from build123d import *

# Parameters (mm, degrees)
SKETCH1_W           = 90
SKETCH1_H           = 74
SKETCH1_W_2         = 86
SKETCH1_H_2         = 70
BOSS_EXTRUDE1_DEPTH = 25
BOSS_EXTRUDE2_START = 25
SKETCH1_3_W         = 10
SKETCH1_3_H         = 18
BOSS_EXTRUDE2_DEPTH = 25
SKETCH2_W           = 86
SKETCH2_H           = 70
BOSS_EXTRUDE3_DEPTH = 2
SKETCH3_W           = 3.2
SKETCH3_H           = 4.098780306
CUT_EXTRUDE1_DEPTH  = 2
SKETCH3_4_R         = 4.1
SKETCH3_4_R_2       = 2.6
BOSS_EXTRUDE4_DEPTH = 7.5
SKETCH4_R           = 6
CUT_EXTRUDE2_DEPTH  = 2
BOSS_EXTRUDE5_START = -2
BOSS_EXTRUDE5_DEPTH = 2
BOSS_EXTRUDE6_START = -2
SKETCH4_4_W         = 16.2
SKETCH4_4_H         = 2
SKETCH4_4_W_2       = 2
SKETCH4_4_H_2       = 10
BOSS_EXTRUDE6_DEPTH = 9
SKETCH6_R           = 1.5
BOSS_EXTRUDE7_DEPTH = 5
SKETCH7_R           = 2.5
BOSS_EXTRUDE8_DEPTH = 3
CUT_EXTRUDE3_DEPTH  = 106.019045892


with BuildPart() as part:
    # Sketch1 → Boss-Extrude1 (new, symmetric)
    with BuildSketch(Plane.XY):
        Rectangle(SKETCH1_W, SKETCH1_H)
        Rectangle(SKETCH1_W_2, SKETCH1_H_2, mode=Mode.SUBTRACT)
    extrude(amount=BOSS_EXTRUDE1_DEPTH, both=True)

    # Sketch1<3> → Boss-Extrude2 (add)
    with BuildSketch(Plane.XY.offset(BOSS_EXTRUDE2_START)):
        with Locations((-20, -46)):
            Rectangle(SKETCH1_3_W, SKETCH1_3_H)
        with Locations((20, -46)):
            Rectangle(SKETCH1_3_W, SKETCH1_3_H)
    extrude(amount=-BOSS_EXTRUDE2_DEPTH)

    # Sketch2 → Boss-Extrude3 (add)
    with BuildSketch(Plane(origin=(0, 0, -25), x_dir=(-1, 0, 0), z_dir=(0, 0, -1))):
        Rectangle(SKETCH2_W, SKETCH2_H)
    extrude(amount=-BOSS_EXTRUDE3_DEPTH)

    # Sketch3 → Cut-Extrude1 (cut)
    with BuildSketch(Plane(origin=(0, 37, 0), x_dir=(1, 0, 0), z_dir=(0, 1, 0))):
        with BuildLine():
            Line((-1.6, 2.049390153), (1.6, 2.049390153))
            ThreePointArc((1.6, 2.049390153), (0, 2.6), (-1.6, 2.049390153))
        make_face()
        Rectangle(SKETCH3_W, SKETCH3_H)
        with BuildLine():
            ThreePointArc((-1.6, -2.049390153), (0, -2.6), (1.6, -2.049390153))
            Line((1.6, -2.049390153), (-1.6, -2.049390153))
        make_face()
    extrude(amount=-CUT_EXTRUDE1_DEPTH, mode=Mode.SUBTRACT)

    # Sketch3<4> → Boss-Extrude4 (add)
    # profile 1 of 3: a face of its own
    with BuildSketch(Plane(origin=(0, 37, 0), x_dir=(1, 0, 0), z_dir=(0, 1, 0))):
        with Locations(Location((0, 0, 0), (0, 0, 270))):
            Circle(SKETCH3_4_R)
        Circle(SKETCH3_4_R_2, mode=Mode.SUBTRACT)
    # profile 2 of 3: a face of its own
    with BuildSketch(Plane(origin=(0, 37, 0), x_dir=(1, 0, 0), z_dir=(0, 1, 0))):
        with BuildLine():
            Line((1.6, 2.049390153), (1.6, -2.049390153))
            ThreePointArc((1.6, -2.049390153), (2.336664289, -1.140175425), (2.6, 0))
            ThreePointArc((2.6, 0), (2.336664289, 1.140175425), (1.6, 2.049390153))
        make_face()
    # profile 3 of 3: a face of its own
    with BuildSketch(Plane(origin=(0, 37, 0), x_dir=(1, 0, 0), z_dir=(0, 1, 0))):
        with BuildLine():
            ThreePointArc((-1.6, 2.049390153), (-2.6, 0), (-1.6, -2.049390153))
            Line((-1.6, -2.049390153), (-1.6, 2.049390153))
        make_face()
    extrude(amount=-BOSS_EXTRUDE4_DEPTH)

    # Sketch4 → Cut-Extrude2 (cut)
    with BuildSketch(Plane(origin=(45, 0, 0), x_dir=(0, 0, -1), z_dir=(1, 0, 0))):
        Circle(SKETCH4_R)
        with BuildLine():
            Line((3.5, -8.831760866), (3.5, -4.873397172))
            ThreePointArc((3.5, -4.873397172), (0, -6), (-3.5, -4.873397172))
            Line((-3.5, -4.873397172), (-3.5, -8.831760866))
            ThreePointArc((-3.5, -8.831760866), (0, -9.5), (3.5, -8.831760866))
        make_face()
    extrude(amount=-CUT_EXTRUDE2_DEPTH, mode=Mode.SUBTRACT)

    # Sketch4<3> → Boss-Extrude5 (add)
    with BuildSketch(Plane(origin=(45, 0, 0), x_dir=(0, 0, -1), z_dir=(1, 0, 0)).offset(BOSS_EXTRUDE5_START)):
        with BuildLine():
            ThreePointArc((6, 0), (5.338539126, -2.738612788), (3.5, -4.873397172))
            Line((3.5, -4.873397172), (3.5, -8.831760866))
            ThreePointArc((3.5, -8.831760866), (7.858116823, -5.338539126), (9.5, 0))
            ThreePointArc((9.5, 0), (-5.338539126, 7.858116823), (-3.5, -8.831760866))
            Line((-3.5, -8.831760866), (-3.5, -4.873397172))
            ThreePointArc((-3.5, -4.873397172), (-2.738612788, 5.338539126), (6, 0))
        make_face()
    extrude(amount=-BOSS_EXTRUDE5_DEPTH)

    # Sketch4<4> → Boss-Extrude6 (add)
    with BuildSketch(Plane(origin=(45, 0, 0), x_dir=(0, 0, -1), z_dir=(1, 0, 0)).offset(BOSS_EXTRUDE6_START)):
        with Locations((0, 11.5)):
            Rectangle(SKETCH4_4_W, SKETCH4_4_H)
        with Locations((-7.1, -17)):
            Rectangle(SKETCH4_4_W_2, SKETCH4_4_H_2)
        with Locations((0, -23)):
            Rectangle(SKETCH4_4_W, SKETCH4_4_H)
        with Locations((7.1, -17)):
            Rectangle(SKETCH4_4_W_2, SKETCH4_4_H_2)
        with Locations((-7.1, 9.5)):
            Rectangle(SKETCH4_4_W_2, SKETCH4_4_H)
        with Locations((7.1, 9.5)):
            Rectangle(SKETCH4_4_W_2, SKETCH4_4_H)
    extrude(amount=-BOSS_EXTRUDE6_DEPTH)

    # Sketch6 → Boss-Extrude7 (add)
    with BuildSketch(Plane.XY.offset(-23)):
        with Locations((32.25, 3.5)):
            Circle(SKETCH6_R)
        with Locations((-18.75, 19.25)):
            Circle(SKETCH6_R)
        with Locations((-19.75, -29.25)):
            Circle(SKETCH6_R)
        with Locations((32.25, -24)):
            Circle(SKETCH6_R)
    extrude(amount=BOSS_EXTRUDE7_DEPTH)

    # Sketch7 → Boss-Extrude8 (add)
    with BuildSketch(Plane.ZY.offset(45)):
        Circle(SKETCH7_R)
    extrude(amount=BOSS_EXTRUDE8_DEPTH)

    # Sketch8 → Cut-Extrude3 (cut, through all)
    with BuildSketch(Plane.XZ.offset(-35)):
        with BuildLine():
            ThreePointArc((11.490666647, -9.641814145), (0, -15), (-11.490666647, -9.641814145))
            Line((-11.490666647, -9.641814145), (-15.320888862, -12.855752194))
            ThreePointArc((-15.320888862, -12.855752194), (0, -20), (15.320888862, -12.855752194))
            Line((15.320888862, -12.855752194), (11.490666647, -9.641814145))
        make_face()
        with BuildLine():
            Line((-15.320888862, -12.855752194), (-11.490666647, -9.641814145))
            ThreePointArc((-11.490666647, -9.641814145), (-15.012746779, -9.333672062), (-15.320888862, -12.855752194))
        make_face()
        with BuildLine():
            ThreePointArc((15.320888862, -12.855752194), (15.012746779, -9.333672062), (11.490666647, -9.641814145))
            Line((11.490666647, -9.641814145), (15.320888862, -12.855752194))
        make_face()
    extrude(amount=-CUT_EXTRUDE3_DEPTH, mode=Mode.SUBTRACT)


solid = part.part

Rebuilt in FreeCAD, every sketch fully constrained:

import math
import FreeCAD as App
import Part
import Sketcher

V = App.Vector
Q = App.Units.Quantity


def add_polygon(sketch, points):
    """Adds a closed chain of lines whose ends are joined by coincident constraints."""
    first, n = sketch.GeometryCount, len(points)
    for a, b in zip(points, points[1:] + points[:1]):
        sketch.addGeometry(Part.LineSegment(App.Vector(*a, 0), App.Vector(*b, 0)), False)
    for i in range(n):
        sketch.addConstraint(Sketcher.Constraint("Coincident", first + i, 2, first + (i + 1) % n, 1))

doc = App.newDocument("Part")
body = doc.addObject("PartDesign::Body", "Body")

# Sketch on XY plane
sketch1 = body.newObject("Sketcher::SketchObject", "Sketch")
sketch1.AttachmentSupport = (doc.getObject("XY_Plane"), [""])
sketch1.MapMode = "FlatFace"
add_polygon(sketch1, [(-45, 37), (-45, -37), (45, -37), (45, 37)])  # lines 0-3
add_polygon(sketch1, [(43, -35), (-43, -35), (-43, 35), (43, 35)])  # lines 4-7
sketch1.addConstraint(Sketcher.Constraint("Vertical", 0))
sketch1.addConstraint(Sketcher.Constraint("Horizontal", 1))
sketch1.addConstraint(Sketcher.Constraint("Vertical", 2))
sketch1.addConstraint(Sketcher.Constraint("Horizontal", 3))
sketch1.addConstraint(Sketcher.Constraint("Horizontal", 4))
sketch1.addConstraint(Sketcher.Constraint("Vertical", 5))
sketch1.addConstraint(Sketcher.Constraint("Horizontal", 6))
sketch1.addConstraint(Sketcher.Constraint("Vertical", 7))
sketch1.addConstraint(Sketcher.Constraint("Symmetric", 0, 2, 2, 2, -1, 1))
sketch1.addConstraint(Sketcher.Constraint("Symmetric", 4, 2, 6, 2, -1, 1))
sketch1.addConstraint(Sketcher.Constraint("DistanceX", 1, 1, 1, 2, Q("90 mm")))
sketch1.addConstraint(Sketcher.Constraint("DistanceX", 4, 2, 4, 1, Q("86 mm")))
sketch1.addConstraint(Sketcher.Constraint("DistanceY", 0, 2, 0, 1, Q("74 mm")))
sketch1.addConstraint(Sketcher.Constraint("DistanceY", 5, 1, 5, 2, Q("70 mm")))
pad1 = body.newObject("PartDesign::Pad", "Pad")
pad1.Profile = sketch1
pad1.Length = 50
pad1.Midplane = True

# Sketch on XY plane
sketch2 = body.newObject("Sketcher::SketchObject", "Sketch001")
sketch2.AttachmentSupport = (doc.getObject("XY_Plane"), [""])
sketch2.MapMode = "FlatFace"
sketch2.AttachmentOffset = App.Placement(V(0, 0, 25), App.Rotation())
add_polygon(sketch2, [(-25, -37), (-25, -55), (-15, -55), (-15, -37)])  # lines 0-3
add_polygon(sketch2, [(15, -37), (15, -55), (25, -55), (25, -37)])  # lines 4-7
sketch2.addConstraint(Sketcher.Constraint("Vertical", 0))
sketch2.addConstraint(Sketcher.Constraint("Horizontal", 1))
sketch2.addConstraint(Sketcher.Constraint("Vertical", 2))
sketch2.addConstraint(Sketcher.Constraint("Horizontal", 3))
sketch2.addConstraint(Sketcher.Constraint("Vertical", 4))
sketch2.addConstraint(Sketcher.Constraint("Horizontal", 5))
sketch2.addConstraint(Sketcher.Constraint("Vertical", 6))
sketch2.addConstraint(Sketcher.Constraint("Horizontal", 7))
sketch2.addConstraint(Sketcher.Constraint("Symmetric", 1, 2, 4, 2, -2))
sketch2.addConstraint(Sketcher.Constraint("Symmetric", 3, 2, 6, 2, -2))
sketch2.addConstraint(Sketcher.Constraint("DistanceX", 1, 1, 1, 2, Q("10 mm")))
sketch2.addConstraint(Sketcher.Constraint("DistanceY", 0, 2, 0, 1, Q("18 mm")))
sketch2.addConstraint(Sketcher.Constraint("DistanceX", 0, 2, -1, 1, Q("25 mm")))
sketch2.addConstraint(Sketcher.Constraint("DistanceY", 0, 2, -1, 1, Q("55 mm")))
pad2 = body.newObject("PartDesign::Pad", "Pad001")
pad2.Profile = sketch2
pad2.Length = 25
pad2.Reversed = True

# Sketch on XY plane
sketch3 = body.newObject("Sketcher::SketchObject", "Sketch002")
sketch3.AttachmentSupport = (doc.getObject("XY_Plane"), [""])
sketch3.MapMode = "FlatFace"
sketch3.AttachmentOffset = App.Placement(V(0, 0, -25), App.Rotation())
add_polygon(sketch3, [(43, 35), (43, -35), (-43, -35), (-43, 35)])  # lines 0-3
sketch3.addConstraint(Sketcher.Constraint("Vertical", 0))
sketch3.addConstraint(Sketcher.Constraint("Horizontal", 1))
sketch3.addConstraint(Sketcher.Constraint("Vertical", 2))
sketch3.addConstraint(Sketcher.Constraint("Horizontal", 3))
sketch3.addConstraint(Sketcher.Constraint("Symmetric", 0, 2, 2, 2, -1, 1))
sketch3.addConstraint(Sketcher.Constraint("DistanceX", 1, 2, 1, 1, Q("86 mm")))
sketch3.addConstraint(Sketcher.Constraint("DistanceY", 0, 2, 0, 1, Q("70 mm")))
pad3 = body.newObject("PartDesign::Pad", "Pad002")
pad3.Profile = sketch3
pad3.Length = 2

# Sketch on XZ plane
sketch4 = body.newObject("Sketcher::SketchObject", "Sketch003")
sketch4.AttachmentSupport = (doc.getObject("XZ_Plane"), [""])
sketch4.MapMode = "FlatFace"
sketch4.AttachmentOffset = App.Placement(V(0, 0, -37), App.Rotation())
sketch4.addGeometry(Part.ArcOfCircle(Part.Circle(V(0, 0, 0), V(0, 0, 1), 2.6), math.radians(-128), math.radians(-52)), False)
sketch4.addGeometry(Part.LineSegment(V(-1.6, -2, 0), V(-1.6, 2, 0)), False)
sketch4.addGeometry(Part.ArcOfCircle(Part.Circle(V(0, 0, 0), V(0, 0, 1), 2.6), math.radians(52), math.radians(128)), False)
sketch4.addGeometry(Part.LineSegment(V(1.6, 2, 0), V(1.6, -2, 0)), False)
sketch4.addConstraint(Sketcher.Constraint("Coincident", 0, 1, 1, 1))
sketch4.addConstraint(Sketcher.Constraint("Coincident", 1, 2, 2, 2))
sketch4.addConstraint(Sketcher.Constraint("Coincident", 2, 1, 3, 1))
sketch4.addConstraint(Sketcher.Constraint("Coincident", 3, 2, 0, 2))
sketch4.addConstraint(Sketcher.Constraint("Vertical", 1))
sketch4.addConstraint(Sketcher.Constraint("Vertical", 3))
sketch4.addConstraint(Sketcher.Constraint("Coincident", 0, 3, -1, 1))
sketch4.addConstraint(Sketcher.Constraint("Coincident", 2, 3, -1, 1))
sketch4.addConstraint(Sketcher.Constraint("Equal", 0, 2))
sketch4.addConstraint(Sketcher.Constraint("Horizontal", 1, 2, 2, 1))
sketch4.addConstraint(Sketcher.Constraint("Radius", 0, Q("2.6 mm")))
sketch4.addConstraint(Sketcher.Constraint("DistanceX", 0, 1, -1, 1, Q("1.6 mm")))
pocket1 = body.newObject("PartDesign::Pocket", "Pocket")
pocket1.Profile = sketch4
pocket1.Length = 2
pocket1.Reversed = True

# Sketch on XZ plane
sketch5 = body.newObject("Sketcher::SketchObject", "Sketch004")
sketch5.AttachmentSupport = (doc.getObject("XZ_Plane"), [""])
sketch5.MapMode = "FlatFace"
sketch5.AttachmentOffset = App.Placement(V(0, 0, -37), App.Rotation())
sketch5.addGeometry(Part.Circle(V(0, 0, 0), V(0, 0, 1), 4.1), False)
sketch5.addGeometry(Part.ArcOfCircle(Part.Circle(V(0, 0, 0), V(0, 0, 1), 2.6), math.radians(-128), math.radians(-52)), False)
sketch5.addGeometry(Part.LineSegment(V(1.6, -2, 0), V(1.6, 2, 0)), False)
sketch5.addGeometry(Part.ArcOfCircle(Part.Circle(V(0, 0, 0), V(0, 0, 1), 2.6), math.radians(52), math.radians(128)), False)
sketch5.addGeometry(Part.LineSegment(V(-1.6, 2, 0), V(-1.6, -2, 0)), False)
sketch5.addConstraint(Sketcher.Constraint("Coincident", 1, 2, 2, 1))
sketch5.addConstraint(Sketcher.Constraint("Coincident", 2, 2, 3, 1))
sketch5.addConstraint(Sketcher.Constraint("Coincident", 3, 2, 4, 1))
sketch5.addConstraint(Sketcher.Constraint("Coincident", 4, 2, 1, 1))
sketch5.addConstraint(Sketcher.Constraint("Vertical", 2))
sketch5.addConstraint(Sketcher.Constraint("Vertical", 4))
sketch5.addConstraint(Sketcher.Constraint("Coincident", 0, 3, -1, 1))
sketch5.addConstraint(Sketcher.Constraint("Coincident", 1, 3, -1, 1))
sketch5.addConstraint(Sketcher.Constraint("Coincident", 3, 3, -1, 1))
sketch5.addConstraint(Sketcher.Constraint("Equal", 1, 3))
sketch5.addConstraint(Sketcher.Constraint("Horizontal", 2, 2, 3, 2))
sketch5.addConstraint(Sketcher.Constraint("Diameter", 0, Q("8.2 mm")))
sketch5.addConstraint(Sketcher.Constraint("Radius", 1, Q("2.6 mm")))
sketch5.addConstraint(Sketcher.Constraint("DistanceX", -1, 1, 1, 2, Q("1.6 mm")))
pad4 = body.newObject("PartDesign::Pad", "Pad003")
pad4.Profile = sketch5
pad4.Length = 7.5

# Sketch on YZ plane
sketch6 = body.newObject("Sketcher::SketchObject", "Sketch005")
sketch6.AttachmentSupport = (doc.getObject("YZ_Plane"), [""])
sketch6.MapMode = "FlatFace"
sketch6.AttachmentOffset = App.Placement(V(0, 0, 45), App.Rotation())
sketch6.addGeometry(Part.LineSegment(V(-4.9, 3.5, 0), V(-8.8, 3.5, 0)), False)
sketch6.addGeometry(Part.ArcOfCircle(Part.Circle(V(0, 0, 0), V(0, 0, 1), 9.5), math.radians(158), math.radians(202)), False)
sketch6.addGeometry(Part.LineSegment(V(-8.8, -3.5, 0), V(-4.9, -3.5, 0)), False)
sketch6.addGeometry(Part.ArcOfCircle(Part.Circle(V(0, 0, 0), V(0, 0, 1), 6), math.radians(-144), math.radians(144)), False)
sketch6.addConstraint(Sketcher.Constraint("Coincident", 0, 2, 1, 1))
sketch6.addConstraint(Sketcher.Constraint("Coincident", 1, 2, 2, 1))
sketch6.addConstraint(Sketcher.Constraint("Coincident", 2, 2, 3, 1))
sketch6.addConstraint(Sketcher.Constraint("Coincident", 3, 2, 0, 1))
sketch6.addConstraint(Sketcher.Constraint("Horizontal", 0))
sketch6.addConstraint(Sketcher.Constraint("Horizontal", 2))
sketch6.addConstraint(Sketcher.Constraint("Coincident", 1, 3, -1, 1))
sketch6.addConstraint(Sketcher.Constraint("Coincident", 3, 3, -1, 1))
sketch6.addConstraint(Sketcher.Constraint("Vertical", 0, 2, 1, 2))
sketch6.addConstraint(Sketcher.Constraint("Radius", 3, Q("6 mm")))
sketch6.addConstraint(Sketcher.Constraint("Radius", 1, Q("9.5 mm")))
sketch6.addConstraint(Sketcher.Constraint("DistanceY", 1, 2, 0, 2, Q("7 mm")))
pocket2 = body.newObject("PartDesign::Pocket", "Pocket001")
pocket2.Profile = sketch6
pocket2.Length = 2

# Sketch on YZ plane
sketch7 = body.newObject("Sketcher::SketchObject", "Sketch006")
sketch7.AttachmentSupport = (doc.getObject("YZ_Plane"), [""])
sketch7.MapMode = "FlatFace"
sketch7.AttachmentOffset = App.Placement(V(0, 0, 43), App.Rotation())
sketch7.addGeometry(Part.ArcOfCircle(Part.Circle(V(0, 0, 0), V(0, 0, 1), 6), math.radians(-144), math.radians(-90)), False)
sketch7.addGeometry(Part.LineSegment(V(-4.9, -3.5, 0), V(-8.8, -3.5, 0)), False)
sketch7.addGeometry(Part.ArcOfCircle(Part.Circle(V(0, 0, 0), V(0, 0, 1), 9.5), math.radians(-158), math.radians(-90)), False)
sketch7.addGeometry(Part.ArcOfCircle(Part.Circle(V(0, 0, 0), V(0, 0, 1), 9.5), math.radians(-90), math.radians(158)), False)
sketch7.addGeometry(Part.LineSegment(V(-8.8, 3.5, 0), V(-4.9, 3.5, 0)), False)
sketch7.addGeometry(Part.ArcOfCircle(Part.Circle(V(0, 0, 0), V(0, 0, 1), 6), math.radians(-90), math.radians(144)), False)
sketch7.addConstraint(Sketcher.Constraint("Coincident", 0, 1, 1, 1))
sketch7.addConstraint(Sketcher.Constraint("Coincident", 1, 2, 2, 1))
sketch7.addConstraint(Sketcher.Constraint("Tangent", 2, 2, 3, 1))
sketch7.addConstraint(Sketcher.Constraint("Coincident", 3, 2, 4, 1))
sketch7.addConstraint(Sketcher.Constraint("Coincident", 4, 2, 5, 2))
sketch7.addConstraint(Sketcher.Constraint("Tangent", 5, 1, 0, 2))
sketch7.addConstraint(Sketcher.Constraint("Horizontal", 1))
sketch7.addConstraint(Sketcher.Constraint("Horizontal", 4))
sketch7.addConstraint(Sketcher.Constraint("Coincident", 0, 3, -1, 1))
sketch7.addConstraint(Sketcher.Constraint("Coincident", 2, 3, -1, 1))
sketch7.addConstraint(Sketcher.Constraint("Equal", 2, 3))
sketch7.addConstraint(Sketcher.Constraint("Equal", 0, 5))
sketch7.addConstraint(Sketcher.Constraint("PointOnObject", 2, 2, -2))
sketch7.addConstraint(Sketcher.Constraint("PointOnObject", 5, 1, -2))
sketch7.addConstraint(Sketcher.Constraint("Vertical", 1, 2, 3, 2))
sketch7.addConstraint(Sketcher.Constraint("Radius", 0, Q("6 mm")))
sketch7.addConstraint(Sketcher.Constraint("Radius", 2, Q("9.5 mm")))
sketch7.addConstraint(Sketcher.Constraint("DistanceY", 2, 2, 0, 1, Q("6 mm")))
pad5 = body.newObject("PartDesign::Pad", "Pad004")
pad5.Profile = sketch7
pad5.Length = 2
pad5.Reversed = True

# Sketch on YZ plane
sketch8 = body.newObject("Sketcher::SketchObject", "Sketch007")
sketch8.AttachmentSupport = (doc.getObject("YZ_Plane"), [""])
sketch8.MapMode = "FlatFace"
sketch8.AttachmentOffset = App.Placement(V(0, 0, 43), App.Rotation())
add_polygon(sketch8, [(12.5, 8.1), (8.5, 8.1), (8.5, 6.1), (10.5, 6.1), (10.5, -6.1), (8.5, -6.1), (8.5, -8.1), (12.5, -8.1)])  # lines 0-7
add_polygon(sketch8, [(-12, 8.1), (-24, 8.1), (-24, -8.1), (-12, -8.1), (-12, -6.1), (-22, -6.1), (-22, 6.1), (-12, 6.1)])  # lines 8-15
sketch8.addConstraint(Sketcher.Constraint("Horizontal", 0))
sketch8.addConstraint(Sketcher.Constraint("Vertical", 1))
sketch8.addConstraint(Sketcher.Constraint("Horizontal", 2))
sketch8.addConstraint(Sketcher.Constraint("Vertical", 3))
sketch8.addConstraint(Sketcher.Constraint("Horizontal", 4))
sketch8.addConstraint(Sketcher.Constraint("Vertical", 5))
sketch8.addConstraint(Sketcher.Constraint("Horizontal", 6))
sketch8.addConstraint(Sketcher.Constraint("Vertical", 7))
sketch8.addConstraint(Sketcher.Constraint("Horizontal", 8))
sketch8.addConstraint(Sketcher.Constraint("Vertical", 9))
sketch8.addConstraint(Sketcher.Constraint("Horizontal", 10))
sketch8.addConstraint(Sketcher.Constraint("Vertical", 11))
sketch8.addConstraint(Sketcher.Constraint("Horizontal", 12))
sketch8.addConstraint(Sketcher.Constraint("Vertical", 13))
sketch8.addConstraint(Sketcher.Constraint("Horizontal", 14))
sketch8.addConstraint(Sketcher.Constraint("Vertical", 15))
sketch8.addConstraint(Sketcher.Constraint("Symmetric", 1, 2, 4, 2, -1))
sketch8.addConstraint(Sketcher.Constraint("Symmetric", 11, 2, 14, 2, -1))
sketch8.addConstraint(Sketcher.Constraint("Horizontal", 7, 2, 8, 2))
sketch8.addConstraint(Sketcher.Constraint("Horizontal", 6, 2, 9, 2))
sketch8.addConstraint(Sketcher.Constraint("Horizontal", 4, 2, 11, 2))
sketch8.addConstraint(Sketcher.Constraint("Equal", 4, 1))
sketch8.addConstraint(Sketcher.Constraint("Equal", 1, 5))
sketch8.addConstraint(Sketcher.Constraint("DistanceX", 0, 2, 0, 1, Q("4 mm")))
sketch8.addConstraint(Sketcher.Constraint("DistanceX", 2, 1, 2, 2, Q("2 mm")))
sketch8.addConstraint(Sketcher.Constraint("DistanceX", 8, 2, 8, 1, Q("12 mm")))
sketch8.addConstraint(Sketcher.Constraint("DistanceX", 12, 2, 12, 1, Q("10 mm")))
sketch8.addConstraint(Sketcher.Constraint("DistanceY", 3, 2, 3, 1, Q("12.2 mm")))
sketch8.addConstraint(Sketcher.Constraint("DistanceX", 8, 2, -1, 1, Q("24 mm")))
sketch8.addConstraint(Sketcher.Constraint("DistanceX", -1, 1, 0, 2, Q("8.5 mm")))
pad6 = body.newObject("PartDesign::Pad", "Pad005")
pad6.Profile = sketch8
pad6.Length = 9
pad6.Reversed = True

# Sketch on XY plane
sketch9 = body.newObject("Sketcher::SketchObject", "Sketch008")
sketch9.AttachmentSupport = (doc.getObject("XY_Plane"), [""])
sketch9.MapMode = "FlatFace"
sketch9.AttachmentOffset = App.Placement(V(0, 0, -23), App.Rotation())
sketch9.addGeometry(Part.Circle(V(32.2, 3.5, 0), V(0, 0, 1), 1.5), False)
sketch9.addGeometry(Part.Circle(V(-18.8, 19.2, 0), V(0, 0, 1), 1.5), False)
sketch9.addGeometry(Part.Circle(V(-19.8, -29.2, 0), V(0, 0, 1), 1.5), False)
sketch9.addGeometry(Part.Circle(V(32.2, -24, 0), V(0, 0, 1), 1.5), False)
sketch9.addConstraint(Sketcher.Constraint("Equal", 0, 1))
sketch9.addConstraint(Sketcher.Constraint("Equal", 1, 2))
sketch9.addConstraint(Sketcher.Constraint("Equal", 2, 3))
sketch9.addConstraint(Sketcher.Constraint("Vertical", 0, 3, 3, 3))
sketch9.addConstraint(Sketcher.Constraint("Diameter", 0, Q("3 mm")))
sketch9.addConstraint(Sketcher.Constraint("DistanceY", 3, 3, -1, 1, Q("24 mm")))
sketch9.addConstraint(Sketcher.Constraint("DistanceX", 1, 3, 0, 3, Q("51 mm")))
sketch9.addConstraint(Sketcher.Constraint("DistanceX", 2, 3, 1, 3, Q("1 mm")))
sketch9.addConstraint(Sketcher.Constraint("DistanceY", -1, 1, 0, 3, Q("3.5 mm")))
sketch9.addConstraint(Sketcher.Constraint("DistanceY", 2, 3, 1, 3, Q("48.5 mm")))
sketch9.addConstraint(Sketcher.Constraint("DistanceX", -1, 1, 0, 3, Q("32.25 mm")))
sketch9.addConstraint(Sketcher.Constraint("DistanceY", -1, 1, 1, 3, Q("19.25 mm")))
pad7 = body.newObject("PartDesign::Pad", "Pad006")
pad7.Profile = sketch9
pad7.Length = 5

# Sketch on YZ plane
sketch10 = body.newObject("Sketcher::SketchObject", "Sketch009")
sketch10.AttachmentSupport = (doc.getObject("YZ_Plane"), [""])
sketch10.MapMode = "FlatFace"
sketch10.AttachmentOffset = App.Placement(V(0, 0, -45), App.Rotation())
sketch10.addGeometry(Part.Circle(V(0, 0, 0), V(0, 0, 1), 2.5), False)
sketch10.addConstraint(Sketcher.Constraint("Coincident", 0, 3, -1, 1))
sketch10.addConstraint(Sketcher.Constraint("Diameter", 0, Q("5 mm")))
pad8 = body.newObject("PartDesign::Pad", "Pad007")
pad8.Profile = sketch10
pad8.Length = 3
pad8.Reversed = True

# Sketch on XZ plane
sketch11 = body.newObject("Sketcher::SketchObject", "Sketch010")
sketch11.AttachmentSupport = (doc.getObject("XZ_Plane"), [""])
sketch11.MapMode = "FlatFace"
sketch11.AttachmentOffset = App.Placement(V(0, 0, -35), App.Rotation())
sketch11.addGeometry(Part.ArcOfCircle(Part.Circle(V(0, 0, 0), V(0, 0, 1), 15), math.radians(-140), math.radians(-40)), False)
sketch11.addGeometry(Part.ArcOfCircle(Part.Circle(V(-13.4, -11.2, 0), V(0, 0, 1), 2.5), math.radians(40), math.radians(220)), False)
sketch11.addGeometry(Part.ArcOfCircle(Part.Circle(V(0, 0, 0), V(0, 0, 1), 20), math.radians(-140), math.radians(-40)), False)
sketch11.addGeometry(Part.ArcOfCircle(Part.Circle(V(13.4, -11.2, 0), V(0, 0, 1), 2.5), math.radians(-40), math.radians(140)), False)
sketch11.addConstraint(Sketcher.Constraint("Tangent", 0, 1, 1, 1))
sketch11.addConstraint(Sketcher.Constraint("Tangent", 1, 2, 2, 1))
sketch11.addConstraint(Sketcher.Constraint("Tangent", 2, 2, 3, 1))
sketch11.addConstraint(Sketcher.Constraint("Tangent", 3, 2, 0, 2))
sketch11.addConstraint(Sketcher.Constraint("Coincident", 0, 3, -1, 1))
sketch11.addConstraint(Sketcher.Constraint("Coincident", 2, 3, -1, 1))
sketch11.addConstraint(Sketcher.Constraint("Horizontal", 1, 3, 3, 3))
sketch11.addConstraint(Sketcher.Constraint("Radius", 0, Q("15 mm")))
sketch11.addConstraint(Sketcher.Constraint("Radius", 2, Q("20 mm")))
sketch11.addConstraint(Sketcher.Constraint("DistanceX", 1, 2, -1, 1, Q("15.320889 mm")))
pocket3 = body.newObject("PartDesign::Pocket", "Pocket002")
pocket3.Profile = sketch11
pocket3.Type = "ThroughAll"

doc.recompute()
